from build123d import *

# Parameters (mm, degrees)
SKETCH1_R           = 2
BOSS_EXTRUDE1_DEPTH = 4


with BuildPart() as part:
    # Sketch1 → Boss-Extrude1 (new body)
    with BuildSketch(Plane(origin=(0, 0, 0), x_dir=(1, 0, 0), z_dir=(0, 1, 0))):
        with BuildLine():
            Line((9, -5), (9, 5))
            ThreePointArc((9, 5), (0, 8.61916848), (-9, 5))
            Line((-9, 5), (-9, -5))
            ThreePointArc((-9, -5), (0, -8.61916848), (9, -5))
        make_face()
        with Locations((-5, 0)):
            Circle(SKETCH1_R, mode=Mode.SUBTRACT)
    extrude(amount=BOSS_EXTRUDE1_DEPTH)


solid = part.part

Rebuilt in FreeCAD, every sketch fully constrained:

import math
import FreeCAD as App
import Part
import Sketcher
from FreeCAD import Vector

doc = App.newDocument("Part")
body = doc.addObject("PartDesign::Body", "Body")

sketch1 = doc.addObject("Sketcher::SketchObject", "Sketch")
body.addObject(sketch1)
sketch1.AttachmentSupport = (doc.XZ_Plane, [""])
sketch1.MapMode = "FlatFace"
sketch1.addGeometry(Part.LineSegment(Vector(9, 5, 0), Vector(9, -5, 0)), False)
sketch1.addGeometry(Part.ArcOfCircle(Part.Circle(Vector(0, 4.4, 0), Vector(0, 0, 1), 13), math.radians(-134), math.radians(-46)), False)
sketch1.addGeometry(Part.LineSegment(Vector(-9, -5, 0), Vector(-9, 5, 0)), False)
sketch1.addGeometry(Part.ArcOfCircle(Part.Circle(Vector(0, -4.4, 0), Vector(0, 0, 1), 13), math.radians(46), math.radians(134)), False)
sketch1.addGeometry(Part.Circle(Vector(-5, 0, 0), Vector(0, 0, 1), 2), False)
sketch1.addConstraint(Sketcher.Constraint("Coincident", 0, 2, 1, 2))
sketch1.addConstraint(Sketcher.Constraint("Coincident", 1, 1, 2, 1))
sketch1.addConstraint(Sketcher.Constraint("Coincident", 2, 2, 3, 2))
sketch1.addConstraint(Sketcher.Constraint("Coincident", 3, 1, 0, 1))
sketch1.addConstraint(Sketcher.Constraint("Vertical", 0))
sketch1.addConstraint(Sketcher.Constraint("Vertical", 2))
sketch1.addConstraint(Sketcher.Constraint("Equal", 1, 3))
sketch1.addConstraint(Sketcher.Constraint("Symmetric", 1, 3, 3, 3, -1, 1))
sketch1.addConstraint(Sketcher.Constraint("Symmetric", 0, 2, 1, 1, -2))
sketch1.addConstraint(Sketcher.Constraint("PointOnObject", 4, 3, -1))
sketch1.addConstraint(Sketcher.Constraint("Diameter", 4, 4.0))
sketch1.addConstraint(Sketcher.Constraint("Radius", 1, 13.0))
sketch1.addConstraint(Sketcher.Constraint("DistanceY", 0, 2, 0, 1, 10.0))
sketch1.addConstraint(Sketcher.Constraint("DistanceX", 4, 3, -1, 1, 5.0))
sketch1.addConstraint(Sketcher.Constraint("DistanceX", -1, 1, 0, 2, 9.0))
pad1 = doc.addObject("PartDesign::Pad", "Pad")
body.addObject(pad1)
pad1.Profile = sketch1
pad1.Length = 4
pad1.Reversed = True

doc.recompute()
